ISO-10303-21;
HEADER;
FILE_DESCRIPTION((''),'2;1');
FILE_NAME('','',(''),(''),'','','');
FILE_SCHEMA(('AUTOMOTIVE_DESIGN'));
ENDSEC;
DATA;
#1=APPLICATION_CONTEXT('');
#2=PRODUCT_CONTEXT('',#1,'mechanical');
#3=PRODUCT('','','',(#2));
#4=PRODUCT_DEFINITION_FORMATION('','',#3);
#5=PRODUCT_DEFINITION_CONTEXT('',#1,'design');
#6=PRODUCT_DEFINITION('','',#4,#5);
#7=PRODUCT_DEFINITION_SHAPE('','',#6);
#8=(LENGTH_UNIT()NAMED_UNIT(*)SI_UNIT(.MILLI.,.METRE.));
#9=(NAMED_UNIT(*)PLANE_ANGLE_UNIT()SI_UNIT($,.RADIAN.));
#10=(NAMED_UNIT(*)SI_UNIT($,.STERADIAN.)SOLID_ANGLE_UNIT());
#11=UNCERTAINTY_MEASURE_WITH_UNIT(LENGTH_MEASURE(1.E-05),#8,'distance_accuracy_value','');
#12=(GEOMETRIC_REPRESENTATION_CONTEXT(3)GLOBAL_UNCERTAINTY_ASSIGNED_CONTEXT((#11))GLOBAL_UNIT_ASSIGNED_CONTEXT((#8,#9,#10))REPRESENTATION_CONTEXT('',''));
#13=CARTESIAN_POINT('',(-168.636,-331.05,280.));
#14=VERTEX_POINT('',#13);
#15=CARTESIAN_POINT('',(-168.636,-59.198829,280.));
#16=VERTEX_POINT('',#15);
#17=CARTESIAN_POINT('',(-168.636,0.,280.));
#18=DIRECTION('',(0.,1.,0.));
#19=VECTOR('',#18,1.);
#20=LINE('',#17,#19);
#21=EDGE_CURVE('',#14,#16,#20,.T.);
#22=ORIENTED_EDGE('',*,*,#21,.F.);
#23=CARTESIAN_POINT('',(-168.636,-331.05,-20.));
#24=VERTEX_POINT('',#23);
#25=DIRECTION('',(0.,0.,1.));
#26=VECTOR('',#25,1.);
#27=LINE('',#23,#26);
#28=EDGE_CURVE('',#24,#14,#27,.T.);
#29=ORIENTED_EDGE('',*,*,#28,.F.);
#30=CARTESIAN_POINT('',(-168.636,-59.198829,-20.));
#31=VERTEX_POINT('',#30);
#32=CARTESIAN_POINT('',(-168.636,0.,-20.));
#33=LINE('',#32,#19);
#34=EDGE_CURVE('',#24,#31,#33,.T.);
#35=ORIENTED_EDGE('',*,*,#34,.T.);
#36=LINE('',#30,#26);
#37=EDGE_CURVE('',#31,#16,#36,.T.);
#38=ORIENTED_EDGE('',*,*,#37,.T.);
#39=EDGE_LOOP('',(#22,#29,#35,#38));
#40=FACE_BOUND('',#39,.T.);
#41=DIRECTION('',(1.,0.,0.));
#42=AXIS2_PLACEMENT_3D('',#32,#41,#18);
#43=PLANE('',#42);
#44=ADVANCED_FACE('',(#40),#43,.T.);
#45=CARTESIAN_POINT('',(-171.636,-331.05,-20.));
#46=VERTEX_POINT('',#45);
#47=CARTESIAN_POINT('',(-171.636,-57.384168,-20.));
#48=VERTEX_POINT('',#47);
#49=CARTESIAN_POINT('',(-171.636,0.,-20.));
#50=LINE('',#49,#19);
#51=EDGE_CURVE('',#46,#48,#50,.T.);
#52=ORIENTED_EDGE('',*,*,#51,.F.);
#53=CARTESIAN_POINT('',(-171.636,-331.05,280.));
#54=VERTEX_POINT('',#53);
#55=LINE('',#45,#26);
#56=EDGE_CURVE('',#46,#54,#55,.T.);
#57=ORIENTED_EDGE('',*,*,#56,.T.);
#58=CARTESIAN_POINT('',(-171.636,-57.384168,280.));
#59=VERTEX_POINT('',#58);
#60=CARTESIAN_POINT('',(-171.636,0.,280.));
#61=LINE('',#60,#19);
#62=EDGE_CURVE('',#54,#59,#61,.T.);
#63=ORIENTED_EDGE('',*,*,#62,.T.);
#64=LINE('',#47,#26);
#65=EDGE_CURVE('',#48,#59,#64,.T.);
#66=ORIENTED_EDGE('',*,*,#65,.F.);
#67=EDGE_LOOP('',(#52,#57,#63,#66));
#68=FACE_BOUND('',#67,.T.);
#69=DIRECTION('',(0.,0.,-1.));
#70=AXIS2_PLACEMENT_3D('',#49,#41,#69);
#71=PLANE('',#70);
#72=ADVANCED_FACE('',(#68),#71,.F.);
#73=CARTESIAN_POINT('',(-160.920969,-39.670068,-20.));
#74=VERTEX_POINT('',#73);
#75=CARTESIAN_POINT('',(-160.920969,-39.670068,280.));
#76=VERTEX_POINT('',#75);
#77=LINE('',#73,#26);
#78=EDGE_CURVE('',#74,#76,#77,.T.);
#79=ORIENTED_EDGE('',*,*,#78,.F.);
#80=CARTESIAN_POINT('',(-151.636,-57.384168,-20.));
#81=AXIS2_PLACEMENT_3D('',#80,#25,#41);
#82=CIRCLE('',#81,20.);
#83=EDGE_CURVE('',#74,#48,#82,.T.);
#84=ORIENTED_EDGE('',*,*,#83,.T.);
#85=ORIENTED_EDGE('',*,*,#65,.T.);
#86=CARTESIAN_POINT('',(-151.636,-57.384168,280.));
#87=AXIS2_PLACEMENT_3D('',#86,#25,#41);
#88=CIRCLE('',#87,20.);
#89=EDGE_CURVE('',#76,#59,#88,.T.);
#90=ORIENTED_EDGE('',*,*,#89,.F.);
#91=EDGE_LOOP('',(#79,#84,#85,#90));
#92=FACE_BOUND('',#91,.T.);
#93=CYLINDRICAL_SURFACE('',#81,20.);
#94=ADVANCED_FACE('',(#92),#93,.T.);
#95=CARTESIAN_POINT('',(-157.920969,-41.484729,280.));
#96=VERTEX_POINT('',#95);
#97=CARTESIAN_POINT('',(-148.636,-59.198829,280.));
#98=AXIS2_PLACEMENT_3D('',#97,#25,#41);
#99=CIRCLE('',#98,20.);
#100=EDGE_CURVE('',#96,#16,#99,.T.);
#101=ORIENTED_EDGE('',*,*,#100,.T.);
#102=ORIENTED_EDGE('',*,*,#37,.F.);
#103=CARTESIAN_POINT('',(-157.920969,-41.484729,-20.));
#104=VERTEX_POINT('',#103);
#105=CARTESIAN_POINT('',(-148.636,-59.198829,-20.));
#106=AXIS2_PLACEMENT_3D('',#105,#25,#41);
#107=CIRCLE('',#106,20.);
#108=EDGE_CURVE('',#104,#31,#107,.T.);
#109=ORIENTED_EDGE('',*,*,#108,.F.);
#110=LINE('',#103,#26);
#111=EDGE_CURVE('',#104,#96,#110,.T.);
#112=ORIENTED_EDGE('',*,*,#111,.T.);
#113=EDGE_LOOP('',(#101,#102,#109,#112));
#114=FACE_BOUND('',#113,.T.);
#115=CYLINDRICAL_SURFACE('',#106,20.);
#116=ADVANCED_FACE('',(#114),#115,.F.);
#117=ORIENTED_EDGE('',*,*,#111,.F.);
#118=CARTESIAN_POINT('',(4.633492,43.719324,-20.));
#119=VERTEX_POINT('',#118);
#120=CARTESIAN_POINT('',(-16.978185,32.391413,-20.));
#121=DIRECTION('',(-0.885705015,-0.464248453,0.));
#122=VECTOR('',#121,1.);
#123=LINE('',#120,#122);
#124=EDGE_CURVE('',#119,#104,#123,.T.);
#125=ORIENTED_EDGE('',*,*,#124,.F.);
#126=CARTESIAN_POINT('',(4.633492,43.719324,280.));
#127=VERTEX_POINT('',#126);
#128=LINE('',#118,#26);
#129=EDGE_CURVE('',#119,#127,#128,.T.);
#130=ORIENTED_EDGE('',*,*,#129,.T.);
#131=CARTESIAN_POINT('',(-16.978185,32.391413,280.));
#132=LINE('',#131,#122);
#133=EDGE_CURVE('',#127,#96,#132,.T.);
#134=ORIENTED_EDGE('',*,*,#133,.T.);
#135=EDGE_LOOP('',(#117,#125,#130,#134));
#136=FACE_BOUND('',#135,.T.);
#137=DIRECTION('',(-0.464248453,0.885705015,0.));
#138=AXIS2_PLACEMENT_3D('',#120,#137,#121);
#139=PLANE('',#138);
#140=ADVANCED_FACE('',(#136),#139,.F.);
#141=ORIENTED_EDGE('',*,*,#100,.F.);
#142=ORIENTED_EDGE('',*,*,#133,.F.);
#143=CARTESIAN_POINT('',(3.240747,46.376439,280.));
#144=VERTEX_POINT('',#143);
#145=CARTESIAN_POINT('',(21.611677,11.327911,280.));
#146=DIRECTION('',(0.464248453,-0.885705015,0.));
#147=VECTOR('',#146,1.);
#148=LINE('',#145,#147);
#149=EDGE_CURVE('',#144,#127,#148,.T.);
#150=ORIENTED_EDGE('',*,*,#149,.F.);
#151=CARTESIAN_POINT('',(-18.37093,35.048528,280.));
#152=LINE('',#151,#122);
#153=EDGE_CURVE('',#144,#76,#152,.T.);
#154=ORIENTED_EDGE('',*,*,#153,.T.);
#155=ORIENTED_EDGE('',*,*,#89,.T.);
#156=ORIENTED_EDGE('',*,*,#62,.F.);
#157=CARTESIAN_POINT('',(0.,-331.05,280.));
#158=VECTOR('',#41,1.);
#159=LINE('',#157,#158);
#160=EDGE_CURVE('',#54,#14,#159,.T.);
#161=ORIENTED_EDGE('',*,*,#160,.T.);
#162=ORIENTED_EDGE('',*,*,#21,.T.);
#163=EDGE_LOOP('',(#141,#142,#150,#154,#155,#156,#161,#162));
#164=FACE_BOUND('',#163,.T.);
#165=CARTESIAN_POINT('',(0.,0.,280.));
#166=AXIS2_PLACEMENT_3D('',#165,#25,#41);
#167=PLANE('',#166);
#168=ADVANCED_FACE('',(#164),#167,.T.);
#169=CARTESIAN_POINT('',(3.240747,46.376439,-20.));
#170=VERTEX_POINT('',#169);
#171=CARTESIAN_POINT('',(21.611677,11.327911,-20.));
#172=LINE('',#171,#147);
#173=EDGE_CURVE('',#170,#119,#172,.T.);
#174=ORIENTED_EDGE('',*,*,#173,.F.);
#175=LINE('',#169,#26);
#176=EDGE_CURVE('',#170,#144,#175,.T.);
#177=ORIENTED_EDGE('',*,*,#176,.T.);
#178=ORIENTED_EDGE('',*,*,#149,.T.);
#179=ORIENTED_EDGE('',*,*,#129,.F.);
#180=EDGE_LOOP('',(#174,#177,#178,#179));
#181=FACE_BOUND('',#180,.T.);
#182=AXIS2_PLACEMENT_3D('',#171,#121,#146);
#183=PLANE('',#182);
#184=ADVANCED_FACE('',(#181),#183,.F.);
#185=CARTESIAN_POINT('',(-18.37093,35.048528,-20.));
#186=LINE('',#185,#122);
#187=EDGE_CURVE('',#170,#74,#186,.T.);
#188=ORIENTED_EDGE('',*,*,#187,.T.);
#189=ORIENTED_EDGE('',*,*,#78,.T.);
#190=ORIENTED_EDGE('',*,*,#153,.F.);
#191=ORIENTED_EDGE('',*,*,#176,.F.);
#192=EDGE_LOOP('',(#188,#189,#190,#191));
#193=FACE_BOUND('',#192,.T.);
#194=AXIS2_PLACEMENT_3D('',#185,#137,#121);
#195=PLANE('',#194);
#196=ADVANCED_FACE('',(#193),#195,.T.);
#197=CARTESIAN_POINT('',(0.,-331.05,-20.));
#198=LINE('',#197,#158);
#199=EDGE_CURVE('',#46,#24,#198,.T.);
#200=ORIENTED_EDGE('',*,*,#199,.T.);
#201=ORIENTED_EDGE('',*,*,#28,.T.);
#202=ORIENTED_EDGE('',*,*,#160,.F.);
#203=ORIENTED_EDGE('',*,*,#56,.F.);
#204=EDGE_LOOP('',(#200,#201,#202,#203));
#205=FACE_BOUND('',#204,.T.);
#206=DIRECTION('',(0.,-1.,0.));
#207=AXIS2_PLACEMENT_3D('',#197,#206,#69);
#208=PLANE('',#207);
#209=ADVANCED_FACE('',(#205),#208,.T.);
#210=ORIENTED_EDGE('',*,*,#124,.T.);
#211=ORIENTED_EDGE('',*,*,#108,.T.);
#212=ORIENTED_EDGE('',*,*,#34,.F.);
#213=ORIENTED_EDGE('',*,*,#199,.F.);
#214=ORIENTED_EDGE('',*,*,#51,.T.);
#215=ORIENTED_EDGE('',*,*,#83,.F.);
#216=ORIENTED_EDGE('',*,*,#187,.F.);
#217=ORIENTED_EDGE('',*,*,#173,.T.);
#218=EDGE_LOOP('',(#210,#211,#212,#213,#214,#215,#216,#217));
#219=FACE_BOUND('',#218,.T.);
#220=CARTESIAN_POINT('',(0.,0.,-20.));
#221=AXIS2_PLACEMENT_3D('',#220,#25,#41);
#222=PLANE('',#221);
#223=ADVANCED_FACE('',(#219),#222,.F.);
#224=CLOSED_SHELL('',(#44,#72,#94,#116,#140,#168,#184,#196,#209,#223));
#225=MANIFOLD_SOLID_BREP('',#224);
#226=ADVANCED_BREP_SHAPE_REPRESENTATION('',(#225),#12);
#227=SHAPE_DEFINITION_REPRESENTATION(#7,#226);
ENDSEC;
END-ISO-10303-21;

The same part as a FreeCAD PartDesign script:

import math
import FreeCAD as App
import Part
import Sketcher
from FreeCAD import Vector

doc = App.newDocument("Part")
body = doc.addObject("PartDesign::Body", "Body")

# Sketch on XY plane
sketch1 = doc.addObject("Sketcher::SketchObject", "Sketch")
body.addObject(sketch1)
sketch1.AttachmentSupport = (doc.XY_Plane, [""])
sketch1.MapMode = "FlatFace"
sketch1.addGeometry(Part.LineSegment(Vector(-168.6, -331.1, 0), Vector(-168.6, -59.2, 0)), False)
sketch1.addGeometry(Part.ArcOfCircle(Part.Circle(Vector(-148.6, -59.2, 0), Vector(0, 0, 1), 20), math.radians(118), math.radians(180)), False)
sketch1.addGeometry(Part.LineSegment(Vector(-157.9, -41.5, 0), Vector(-156.6, -40.8, 0)), False)
sketch1.addGeometry(Part.LineSegment(Vector(-156.6, -40.8, 0), Vector(-21.8, 29.8, 0)), False)
sketch1.addGeometry(Part.LineSegment(Vector(-21.8, 29.8, 0), Vector(4.6, 43.7, 0)), False)
sketch1.addGeometry(Part.LineSegment(Vector(4.6, 43.7, 0), Vector(3.2, 46.4, 0)), False)
sketch1.addGeometry(Part.LineSegment(Vector(3.2, 46.4, 0), Vector(-160.9, -39.7, 0)), False)
sketch1.addGeometry(Part.ArcOfCircle(Part.Circle(Vector(-151.6, -57.4, 0), Vector(0, 0, 1), 20), math.radians(118), math.radians(180)), False)
sketch1.addGeometry(Part.LineSegment(Vector(-171.6, -57.4, 0), Vector(-171.6, -331.1, 0)), False)
sketch1.addGeometry(Part.LineSegment(Vector(-171.6, -331.1, 0), Vector(-168.6, -331.1, 0)), False)
sketch1.addConstraint(Sketcher.Constraint("Tangent", 0, 2, 1, 2))
sketch1.addConstraint(Sketcher.Constraint("Tangent", 1, 1, 2, 1))
sketch1.addConstraint(Sketcher.Constraint("Coincident", 2, 2, 3, 1))
sketch1.addConstraint(Sketcher.Constraint("Coincident", 3, 2, 4, 1))
sketch1.addConstraint(Sketcher.Constraint("Coincident", 4, 2, 5, 1))
sketch1.addConstraint(Sketcher.Constraint("Coincident", 5, 2, 6, 1))
sketch1.addConstraint(Sketcher.Constraint("Tangent", 6, 2, 7, 1))
sketch1.addConstraint(Sketcher.Constraint("Tangent", 7, 2, 8, 1))
sketch1.addConstraint(Sketcher.Constraint("Coincident", 8, 2, 9, 1))
sketch1.addConstraint(Sketcher.Constraint("Coincident", 9, 2, 0, 1))
sketch1.addConstraint(Sketcher.Constraint("Vertical", 0))
sketch1.addConstraint(Sketcher.Constraint("Vertical", 8))
sketch1.addConstraint(Sketcher.Constraint("Horizontal", 9))
sketch1.addConstraint(Sketcher.Constraint("Equal", 1, 7))
sketch1.addConstraint(Sketcher.Constraint("Parallel", 2, 3))
sketch1.addConstraint(Sketcher.Constraint("Parallel", 3, 4))
sketch1.addConstraint(Sketcher.Constraint("Perpendicular", 4, 5))
sketch1.addConstraint(Sketcher.Constraint("Perpendicular", 5, 6))
sketch1.addConstraint(Sketcher.Constraint("Radius", 1, 20.0))
sketch1.addConstraint(Sketcher.Constraint("DistanceX", 9, 1, 9, 2, 3.0))
sketch1.addConstraint(Sketcher.Constraint("Distance", 5, 3.0))
sketch1.addConstraint(Sketcher.Constraint("DistanceY", 8, 2, -1, 1, 331.05))
sketch1.addConstraint(Sketcher.Constraint("DistanceX", 1, 3, -1, 1, 148.636))
sketch1.addConstraint(Sketcher.Constraint("DistanceY", 0, 1, 0, 2, 271.851171))
sketch1.addConstraint(Sketcher.Constraint("DistanceX", 2, 2, -1, 1, 156.629101))
sketch1.addConstraint(Sketcher.Constraint("DistanceY", 1, 3, 1, 1, 17.7141))
sketch1.addConstraint(Sketcher.Constraint("DistanceX", 3, 2, -1, 1, 21.84095))
sketch1.addConstraint(Sketcher.Constraint("DistanceY", -1, 1, 5, 2, 46.376439))
pad1 = doc.addObject("PartDesign::Pad", "Pad")
body.addObject(pad1)
pad1.Profile = sketch1
pad1.Type = "TwoLengths"
pad1.Length = 280
pad1.Length2 = 20

doc.recompute()
